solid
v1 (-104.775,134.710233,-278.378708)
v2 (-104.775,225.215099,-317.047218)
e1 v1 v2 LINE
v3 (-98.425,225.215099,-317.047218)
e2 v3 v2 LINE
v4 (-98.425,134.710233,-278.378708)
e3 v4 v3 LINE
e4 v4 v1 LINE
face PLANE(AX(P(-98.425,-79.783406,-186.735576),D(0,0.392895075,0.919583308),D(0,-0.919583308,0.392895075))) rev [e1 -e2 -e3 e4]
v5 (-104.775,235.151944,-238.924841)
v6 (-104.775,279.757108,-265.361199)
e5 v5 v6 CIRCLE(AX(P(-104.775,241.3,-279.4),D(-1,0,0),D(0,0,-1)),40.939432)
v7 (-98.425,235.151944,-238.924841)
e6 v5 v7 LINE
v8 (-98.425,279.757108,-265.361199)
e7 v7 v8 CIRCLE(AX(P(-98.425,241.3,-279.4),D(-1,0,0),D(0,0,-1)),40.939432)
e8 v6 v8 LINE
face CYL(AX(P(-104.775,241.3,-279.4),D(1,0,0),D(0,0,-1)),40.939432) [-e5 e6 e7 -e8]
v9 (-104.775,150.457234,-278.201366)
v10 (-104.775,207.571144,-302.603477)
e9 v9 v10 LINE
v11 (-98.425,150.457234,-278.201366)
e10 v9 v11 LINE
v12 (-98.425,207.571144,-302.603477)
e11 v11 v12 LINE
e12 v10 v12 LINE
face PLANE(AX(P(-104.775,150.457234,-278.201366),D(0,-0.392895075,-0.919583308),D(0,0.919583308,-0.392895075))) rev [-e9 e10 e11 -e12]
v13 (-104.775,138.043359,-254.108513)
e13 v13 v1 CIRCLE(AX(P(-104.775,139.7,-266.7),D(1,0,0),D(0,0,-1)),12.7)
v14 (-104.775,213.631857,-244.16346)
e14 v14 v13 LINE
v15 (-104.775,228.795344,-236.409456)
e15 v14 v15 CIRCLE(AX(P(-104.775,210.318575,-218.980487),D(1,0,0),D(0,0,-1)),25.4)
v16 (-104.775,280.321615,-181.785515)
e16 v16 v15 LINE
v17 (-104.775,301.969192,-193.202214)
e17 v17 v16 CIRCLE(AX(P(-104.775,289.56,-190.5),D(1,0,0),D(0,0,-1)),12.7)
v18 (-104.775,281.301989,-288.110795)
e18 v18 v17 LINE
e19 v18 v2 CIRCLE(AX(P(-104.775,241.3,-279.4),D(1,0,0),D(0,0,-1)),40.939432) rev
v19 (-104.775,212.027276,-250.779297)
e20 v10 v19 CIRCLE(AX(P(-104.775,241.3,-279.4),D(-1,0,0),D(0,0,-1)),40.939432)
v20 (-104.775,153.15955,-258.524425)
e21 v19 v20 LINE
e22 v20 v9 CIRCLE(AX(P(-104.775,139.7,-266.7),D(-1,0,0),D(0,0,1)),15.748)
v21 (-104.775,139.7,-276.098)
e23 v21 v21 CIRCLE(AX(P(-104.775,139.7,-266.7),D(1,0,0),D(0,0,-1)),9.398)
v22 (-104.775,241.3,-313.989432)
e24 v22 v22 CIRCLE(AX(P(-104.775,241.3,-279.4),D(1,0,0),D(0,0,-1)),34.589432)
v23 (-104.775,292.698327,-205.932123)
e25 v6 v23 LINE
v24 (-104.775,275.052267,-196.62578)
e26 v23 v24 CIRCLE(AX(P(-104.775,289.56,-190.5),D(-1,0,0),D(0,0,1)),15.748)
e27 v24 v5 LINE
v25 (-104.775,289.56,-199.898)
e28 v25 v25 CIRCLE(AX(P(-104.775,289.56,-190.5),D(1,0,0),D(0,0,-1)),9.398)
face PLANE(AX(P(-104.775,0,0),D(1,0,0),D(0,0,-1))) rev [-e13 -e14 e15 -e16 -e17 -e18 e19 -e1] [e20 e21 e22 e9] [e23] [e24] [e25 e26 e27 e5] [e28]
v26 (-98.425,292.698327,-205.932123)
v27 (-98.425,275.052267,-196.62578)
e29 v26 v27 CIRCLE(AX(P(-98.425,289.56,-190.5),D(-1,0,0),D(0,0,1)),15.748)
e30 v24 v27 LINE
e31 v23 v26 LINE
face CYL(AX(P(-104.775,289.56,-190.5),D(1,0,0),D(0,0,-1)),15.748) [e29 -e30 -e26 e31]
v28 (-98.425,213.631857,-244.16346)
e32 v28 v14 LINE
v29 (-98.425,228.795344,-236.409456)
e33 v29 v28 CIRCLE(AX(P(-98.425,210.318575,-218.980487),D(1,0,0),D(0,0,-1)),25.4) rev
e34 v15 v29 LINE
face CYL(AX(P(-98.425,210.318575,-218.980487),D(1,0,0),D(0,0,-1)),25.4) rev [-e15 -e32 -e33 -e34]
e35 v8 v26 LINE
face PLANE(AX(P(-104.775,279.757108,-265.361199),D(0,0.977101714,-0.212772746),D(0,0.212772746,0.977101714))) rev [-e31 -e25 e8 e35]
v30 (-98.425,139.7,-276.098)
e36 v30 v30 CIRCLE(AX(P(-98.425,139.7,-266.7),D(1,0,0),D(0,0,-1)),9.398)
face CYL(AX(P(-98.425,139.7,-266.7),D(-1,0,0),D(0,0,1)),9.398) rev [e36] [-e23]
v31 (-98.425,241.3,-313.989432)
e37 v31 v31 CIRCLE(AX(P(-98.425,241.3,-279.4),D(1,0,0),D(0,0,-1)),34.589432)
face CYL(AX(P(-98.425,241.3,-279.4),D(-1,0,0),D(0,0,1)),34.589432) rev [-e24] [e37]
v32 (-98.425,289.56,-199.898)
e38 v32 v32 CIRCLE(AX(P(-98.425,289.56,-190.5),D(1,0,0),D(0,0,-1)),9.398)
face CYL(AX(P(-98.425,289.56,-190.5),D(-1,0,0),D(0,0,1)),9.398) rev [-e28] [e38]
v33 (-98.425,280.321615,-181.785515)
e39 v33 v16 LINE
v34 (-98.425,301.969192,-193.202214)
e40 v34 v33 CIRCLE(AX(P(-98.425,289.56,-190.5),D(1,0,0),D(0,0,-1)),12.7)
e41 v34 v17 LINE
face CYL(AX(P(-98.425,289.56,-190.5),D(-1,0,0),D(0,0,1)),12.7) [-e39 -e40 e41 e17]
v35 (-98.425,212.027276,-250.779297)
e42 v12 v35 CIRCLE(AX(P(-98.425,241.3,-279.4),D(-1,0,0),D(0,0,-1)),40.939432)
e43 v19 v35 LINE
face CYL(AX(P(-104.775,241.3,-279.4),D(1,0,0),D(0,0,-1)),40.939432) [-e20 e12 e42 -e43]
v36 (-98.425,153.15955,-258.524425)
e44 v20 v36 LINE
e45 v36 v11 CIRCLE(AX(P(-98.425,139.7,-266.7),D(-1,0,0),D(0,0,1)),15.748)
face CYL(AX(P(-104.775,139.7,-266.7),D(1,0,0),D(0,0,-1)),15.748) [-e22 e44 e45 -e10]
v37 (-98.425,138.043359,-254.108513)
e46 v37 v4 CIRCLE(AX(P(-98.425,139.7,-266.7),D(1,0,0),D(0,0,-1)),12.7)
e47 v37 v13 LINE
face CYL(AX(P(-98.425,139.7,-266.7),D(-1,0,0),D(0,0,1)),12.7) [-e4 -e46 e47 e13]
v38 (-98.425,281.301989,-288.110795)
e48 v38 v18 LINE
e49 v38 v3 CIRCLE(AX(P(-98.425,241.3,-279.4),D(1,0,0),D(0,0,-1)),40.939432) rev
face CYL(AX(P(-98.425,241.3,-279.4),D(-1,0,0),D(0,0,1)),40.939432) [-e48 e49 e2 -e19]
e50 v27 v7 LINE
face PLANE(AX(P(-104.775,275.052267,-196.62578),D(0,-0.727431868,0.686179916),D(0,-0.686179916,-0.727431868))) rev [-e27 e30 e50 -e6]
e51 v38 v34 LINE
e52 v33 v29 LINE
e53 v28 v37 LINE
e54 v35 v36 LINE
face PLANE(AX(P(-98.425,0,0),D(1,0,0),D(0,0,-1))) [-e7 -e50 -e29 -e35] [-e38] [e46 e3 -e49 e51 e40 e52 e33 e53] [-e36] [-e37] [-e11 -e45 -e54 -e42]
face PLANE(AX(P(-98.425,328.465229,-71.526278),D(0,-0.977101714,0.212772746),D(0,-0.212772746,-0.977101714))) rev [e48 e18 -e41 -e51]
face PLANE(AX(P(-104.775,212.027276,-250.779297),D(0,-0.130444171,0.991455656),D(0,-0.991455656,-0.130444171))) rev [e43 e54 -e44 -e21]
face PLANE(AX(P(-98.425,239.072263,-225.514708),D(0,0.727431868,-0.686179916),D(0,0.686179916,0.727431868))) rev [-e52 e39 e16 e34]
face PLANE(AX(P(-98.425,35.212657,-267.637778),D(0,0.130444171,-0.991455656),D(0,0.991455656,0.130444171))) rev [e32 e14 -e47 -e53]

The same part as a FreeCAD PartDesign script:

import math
import FreeCAD as App
import Part
import Sketcher
Q = App.Units.Quantity


def edges_at(feature, points):
    """Names of the edges that pass closest to the given points."""
    edges = feature.Shape.Edges
    near = lambda p: min(range(len(edges)), key=lambda i: edges[i].distToShape(Part.Vertex(*p))[0])
    return sorted({f"Edge{near(p) + 1}" for p in points})

doc = App.newDocument("Part")
body = doc.addObject("PartDesign::Body", "Body")

sketch1 = doc.addObject("Sketcher::SketchObject", "Sketch")
body.addObject(sketch1)
sketch1.AttachmentSupport = (doc.YZ_Plane, [""])
sketch1.MapMode = "FlatFace"
sketch1.AttachmentOffset = App.Placement(App.Vector(0, 0, -4 * 25.4), App.Rotation())
sketch1.addGeometry([
    Part.LineSegment(App.Vector(280, -182, 0), App.Vector(223, -243, 0)),
    Part.LineSegment(App.Vector(223, -243, 0), App.Vector(138, -254, 0)),
    Part.ArcOfCircle(Part.Circle(App.Vector(140, -267, 0), App.Vector(0, 0, 1), 13), math.radians(97), math.radians(247)),
    Part.LineSegment(App.Vector(135, -278, 0), App.Vector(225, -317, 0)),
    Part.ArcOfCircle(Part.Circle(App.Vector(241, -279, 0), App.Vector(0, 0, 1), 41), math.radians(-113), math.radians(-12)),
    Part.LineSegment(App.Vector(281, -288, 0), App.Vector(302, -193, 0)),
    Part.ArcOfCircle(Part.Circle(App.Vector(290, -190, 0), App.Vector(0, 0, 1), 13), math.radians(-12), math.radians(137)),
    Part.Circle(App.Vector(140, -267, 0), App.Vector(0, 0, 1), 9),
    Part.Circle(App.Vector(290, -190, 0), App.Vector(0, 0, 1), 9),
    Part.Circle(App.Vector(241, -279, 0), App.Vector(0, 0, 1), 35),
], False)
sketch1.addConstraint([
    Sketcher.Constraint("Coincident", 0, 2, 1, 1),
    Sketcher.Constraint("Tangent", 1, 2, 2, 1),
    Sketcher.Constraint("Tangent", 2, 2, 3, 1),
    Sketcher.Constraint("Tangent", 3, 2, 4, 1),
    Sketcher.Constraint("Tangent", 4, 2, 5, 1),
    Sketcher.Constraint("Tangent", 5, 2, 6, 1),
    Sketcher.Constraint("Tangent", 6, 2, 0, 1),
    Sketcher.Constraint("Coincident", 7, 3, 2, 3),
    Sketcher.Constraint("Coincident", 8, 3, 6, 3),
    Sketcher.Constraint("Coincident", 9, 3, 4, 3),
    Sketcher.Constraint("Equal", 2, 6),
    Sketcher.Constraint("Equal", 7, 8),
    Sketcher.Constraint("Radius", 2, Q("0.5 in")),
    Sketcher.Constraint("Diameter", 7, Q("0.74 in")),
    Sketcher.Constraint("DistanceY", 4, 3, -1, 1, Q("11 in")),
    Sketcher.Constraint("DistanceX", 2, 3, 4, 3, Q("4 in")),
    Sketcher.Constraint("DistanceY", 2, 3, 6, 3, Q("3 in")),
    Sketcher.Constraint("DistanceX", -1, 1, 2, 3, Q("5.5 in")),
    Sketcher.Constraint("DistanceY", 2, 3, -1, 1, Q("10.5 in")),
    Sketcher.Constraint("DistanceX", -1, 1, 6, 3, Q("11.4 in")),
    Sketcher.Constraint("Radius", 4, 40.939432),
    Sketcher.Constraint("Diameter", 9, 69.178863),
    Sketcher.Constraint("DistanceX", 2, 2, 0, 2, 87.883002),
    Sketcher.Constraint("DistanceY", 5, 2, 6, 2, 11.416699),
])
pad1 = doc.addObject("PartDesign::Pad", "Pad")
body.addObject(pad1)
pad1.Profile = sketch1
pad1.Length = Q("0.25 in")
pad1.Midplane = True
doc.recompute()

fillet = doc.addObject("PartDesign::Fillet", "Fillet")
body.addObject(fillet)
fillet.Base = (pad1, edges_at(pad1, [(-101.6, 222.593, -242.984)]))
fillet.Radius = Q("1 in")

sketch2 = doc.addObject("Sketcher::SketchObject", "Sketch001")
body.addObject(sketch2)
sketch2.AttachmentSupport = (doc.YZ_Plane, [""])
sketch2.MapMode = "FlatFace"
sketch2.AttachmentOffset = App.Placement(App.Vector(0, 0, -3.875 * 25.4), App.Rotation())
sketch2.addGeometry([
    Part.LineSegment(App.Vector(275, -197, 0), App.Vector(235, -239, 0)),
    Part.ArcOfCircle(Part.Circle(App.Vector(241, -279, 0), App.Vector(0, 0, 1), 41), math.radians(20), math.radians(99)),
    Part.LineSegment(App.Vector(280, -265, 0), App.Vector(293, -206, 0)),
    Part.ArcOfCircle(Part.Circle(App.Vector(290, -191, 0), App.Vector(0, 0, 1), 16), math.radians(-157), math.radians(-79)),
    Part.LineSegment(App.Vector(212, -251, 0), App.Vector(153, -259, 0)),
    Part.ArcOfCircle(Part.Circle(App.Vector(140, -267, 0), App.Vector(0, 0, 1), 16), math.radians(-47), math.radians(31)),
    Part.LineSegment(App.Vector(150, -278, 0), App.Vector(208, -303, 0)),
    Part.ArcOfCircle(Part.Circle(App.Vector(241, -279, 0), App.Vector(0, 0, 1), 41), math.radians(136), math.radians(215)),
], False)
sketch2.addConstraint([
    Sketcher.Constraint("Coincident", 0, 2, 1, 2),
    Sketcher.Constraint("Coincident", 1, 1, 2, 1),
    Sketcher.Constraint("Coincident", 2, 2, 3, 2),
    Sketcher.Constraint("Coincident", 3, 1, 0, 1),
    Sketcher.Constraint("Coincident", 4, 2, 5, 2),
    Sketcher.Constraint("Coincident", 5, 1, 6, 1),
    Sketcher.Constraint("Coincident", 6, 2, 7, 2),
    Sketcher.Constraint("Coincident", 7, 1, 4, 1),
    Sketcher.Constraint("Coincident", 7, 3, 1, 3),
    Sketcher.Constraint("Equal", 3, 5),
    Sketcher.Constraint("Equal", 1, 7),
    Sketcher.Constraint("Radius", 3, Q("0.62 in")),
    Sketcher.Constraint("DistanceY", 1, 3, -1, 1, Q("11 in")),
    Sketcher.Constraint("DistanceX", 5, 3, 1, 3, Q("4 in")),
    Sketcher.Constraint("DistanceY", 5, 3, 3, 3, Q("3 in")),
    Sketcher.Constraint("DistanceX", -1, 1, 1, 3, Q("9.5 in")),
    Sketcher.Constraint("DistanceX", -1, 1, 3, 3, Q("11.4 in")),
    Sketcher.Constraint("DistanceY", 3, 3, -1, 1, Q("7.5 in")),
    Sketcher.Constraint("Radius", 1, 40.939432),
    Sketcher.Constraint("DistanceY", 1, 1, -1, 1, 265.361199),
    Sketcher.Constraint("DistanceX", 6, 2, 0, 2, 27.5808),
    Sketcher.Constraint("Distance", 2, 60.821791),
    Sketcher.Constraint("DistanceY", 0, 2, -1, 1, 238.924841),
    Sketcher.Constraint("DistanceY", 3, 1, -1, 1, 196.62578),
    Sketcher.Constraint("DistanceX", -1, 1, 4, 2, 153.15955),
    Sketcher.Constraint("DistanceY", 5, 1, 4, 2, 19.676941),
    Sketcher.Constraint("DistanceX", 7, 1, 0, 2, 23.124669),
])
pocket1 = doc.addObject("PartDesign::Pocket", "Pocket")
body.addObject(pocket1)
pocket1.Profile = sketch2
pocket1.Type = "ThroughAll"

doc.recompute()
